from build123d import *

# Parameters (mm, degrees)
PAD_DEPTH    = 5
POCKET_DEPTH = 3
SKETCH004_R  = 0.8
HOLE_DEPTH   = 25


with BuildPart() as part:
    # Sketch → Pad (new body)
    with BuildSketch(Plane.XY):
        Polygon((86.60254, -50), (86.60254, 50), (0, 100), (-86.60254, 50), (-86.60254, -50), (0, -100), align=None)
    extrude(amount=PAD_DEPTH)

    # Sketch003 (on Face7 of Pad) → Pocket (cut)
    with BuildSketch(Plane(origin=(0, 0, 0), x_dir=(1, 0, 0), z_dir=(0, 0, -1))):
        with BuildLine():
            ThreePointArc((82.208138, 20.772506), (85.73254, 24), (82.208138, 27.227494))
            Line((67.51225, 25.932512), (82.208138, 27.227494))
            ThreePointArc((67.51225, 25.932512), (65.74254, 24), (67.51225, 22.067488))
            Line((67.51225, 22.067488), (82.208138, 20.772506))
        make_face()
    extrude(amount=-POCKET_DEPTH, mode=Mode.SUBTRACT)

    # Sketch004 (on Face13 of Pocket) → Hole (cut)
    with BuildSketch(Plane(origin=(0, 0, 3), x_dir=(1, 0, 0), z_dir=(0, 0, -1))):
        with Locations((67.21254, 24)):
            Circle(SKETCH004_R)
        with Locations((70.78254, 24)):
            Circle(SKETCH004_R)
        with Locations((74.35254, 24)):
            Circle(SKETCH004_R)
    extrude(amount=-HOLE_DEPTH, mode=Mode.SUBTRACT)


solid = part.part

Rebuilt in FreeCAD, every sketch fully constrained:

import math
import FreeCAD as App
import Part
import Sketcher
from FreeCAD import Vector
Q = App.Units.Quantity


def add_polygon(sketch, points):
    """Adds a closed chain of lines whose ends are joined by coincident constraints."""
    first, n = sketch.GeometryCount, len(points)
    for a, b in zip(points, points[1:] + points[:1]):
        sketch.addGeometry(Part.LineSegment(App.Vector(*a, 0), App.Vector(*b, 0)), False)
    for i in range(n):
        sketch.addConstraint(Sketcher.Constraint("Coincident", first + i, 2, first + (i + 1) % n, 1))

doc = App.newDocument("Part")
params = doc.addObject("Spreadsheet::Sheet", "Params")
for row, (alias, value) in enumerate([
    ("sketch1_height", "100 mm"),
    ("sketch1_length", "100 mm"),
    ("pad1_length", "5 mm"),
    ("sketch2_radius", "3.24 mm"),
    ("sketch2_radius2", "1.94 mm"),
    ("pocket1_length", "3 mm"),
    ("sketch3_diameter", "1.6 mm"),
    ("pocket2_length", "25 mm"),
], start=1):
    params.set(f"A{row}", alias)
    params.set(f"B{row}", "=" + value)
    params.setAlias(f"B{row}", alias)

body = doc.addObject("PartDesign::Body", "Body")

sketch1 = body.newObject("Sketcher::SketchObject", "Sketch")
sketch1.AttachmentSupport = (doc.getObject("XY_Plane"), [""])
sketch1.MapMode = "FlatFace"
add_polygon(sketch1, [(86.60254, -50), (86.60254, 50), (0, 100), (-86.60254, 50), (-86.60254, -50), (0, -100)])
sketch1.addConstraint([
    Sketcher.Constraint("Vertical", 0),
    Sketcher.Constraint("Vertical", 3),
    Sketcher.Constraint("Symmetric", 0, 2, 3, 2, -1, 1),
    Sketcher.Constraint("Symmetric", 1, 2, 4, 2, -1, 1),
    Sketcher.Constraint("PointOnObject", 1, 2, -2),
    Sketcher.Constraint("Parallel", 2, 5),
    Sketcher.Constraint("Horizontal", 0, 2, 2, 2),
    Sketcher.Constraint("DistanceY", 0, 1, 0, 2, 100.0),
    Sketcher.Constraint("Angle", 1, Q("150 deg")),
    Sketcher.Constraint("Distance", 1, 100.0),
])
sketch1.setExpression("Constraints[13]", "Params.sketch1_height")
sketch1.setExpression("Constraints[15]", "Params.sketch1_length")
pad1 = body.newObject("PartDesign::Pad", "Pad")
pad1.Profile = sketch1
pad1.setExpression("Length", "Params.pad1_length")

sketch2 = body.newObject("Sketcher::SketchObject", "Sketch001")
sketch2.AttachmentSupport = (doc.getObject("XY_Plane"), [""])
sketch2.MapMode = "FlatFace"
sketch2.addGeometry([
    Part.ArcOfCircle(Part.Circle(Vector(82.49254, -24, 0), Vector(0, 0, 1), 3.24), math.radians(-95.035807), math.radians(95.035807)),
    Part.LineSegment(Vector(82.208138, -27.227494, 0), Vector(67.51225, -25.932512, 0)),
    Part.ArcOfCircle(Part.Circle(Vector(67.68254, -24, 0), Vector(0, 0, 1), 1.94), math.radians(95.03582), math.radians(264.96418)),
    Part.LineSegment(Vector(67.51225, -22.067488, 0), Vector(82.208138, -20.772506, 0)),
], False)
sketch2.addConstraint([
    Sketcher.Constraint("Tangent", 0, 1, 1, 1),
    Sketcher.Constraint("Tangent", 1, 2, 2, 2),
    Sketcher.Constraint("Tangent", 2, 1, 3, 1),
    Sketcher.Constraint("Tangent", 3, 2, 0, 2),
    Sketcher.Constraint("Horizontal", 0, 3, 2, 3),
    Sketcher.Constraint("Radius", 0, 3.24),
    Sketcher.Constraint("Radius", 2, 1.94),
    Sketcher.Constraint("DistanceY", 0, 3, -1, 1, 24.0),
    Sketcher.Constraint("DistanceX", 2, 3, 0, 3, 14.809999),
    Sketcher.Constraint("DistanceX", -1, 1, 0, 3, 82.49254),
])
sketch2.setExpression("Constraints[5]", "Params.sketch2_radius")
sketch2.setExpression("Constraints[6]", "Params.sketch2_radius2")
pocket1 = body.newObject("PartDesign::Pocket", "Pocket")
pocket1.Profile = sketch2
pocket1.setExpression("Length", "Params.pocket1_length")
pocket1.Reversed = True

sketch3 = body.newObject("Sketcher::SketchObject", "Sketch002")
sketch3.AttachmentSupport = (doc.getObject("XY_Plane"), [""])
sketch3.MapMode = "FlatFace"
sketch3.AttachmentOffset = App.Placement(Vector(0, 0, 3), App.Rotation())
sketch3.addGeometry([
    Part.Circle(Vector(67.21254, -24, 0), Vector(0, 0, 1), 0.8),
    Part.Circle(Vector(70.78254, -24, 0), Vector(0, 0, 1), 0.8),
    Part.Circle(Vector(74.35254, -24, 0), Vector(0, 0, 1), 0.8),
], False)
sketch3.addConstraint([
    Sketcher.Constraint("Equal", 0, 1),
    Sketcher.Constraint("Equal", 1, 2),
    Sketcher.Constraint("Horizontal", 0, 3, 1, 3),
    Sketcher.Constraint("Horizontal", 1, 3, 2, 3),
    Sketcher.Constraint("Diameter", 0, 1.6),
    Sketcher.Constraint("DistanceY", 0, 3, -1, 1, 24.0),
    Sketcher.Constraint("DistanceX", 0, 3, 1, 3, 3.57),
    Sketcher.Constraint("DistanceX", 1, 3, 2, 3, 3.57),
    Sketcher.Constraint("DistanceX", -1, 1, 0, 3, 67.21254),
])
sketch3.setExpression("Constraints[4]", "Params.sketch3_diameter")
pocket2 = body.newObject("PartDesign::Pocket", "Pocket001")
pocket2.Profile = sketch3
pocket2.setExpression("Length", "Params.pocket2_length")
pocket2.Reversed = True

doc.recompute()
